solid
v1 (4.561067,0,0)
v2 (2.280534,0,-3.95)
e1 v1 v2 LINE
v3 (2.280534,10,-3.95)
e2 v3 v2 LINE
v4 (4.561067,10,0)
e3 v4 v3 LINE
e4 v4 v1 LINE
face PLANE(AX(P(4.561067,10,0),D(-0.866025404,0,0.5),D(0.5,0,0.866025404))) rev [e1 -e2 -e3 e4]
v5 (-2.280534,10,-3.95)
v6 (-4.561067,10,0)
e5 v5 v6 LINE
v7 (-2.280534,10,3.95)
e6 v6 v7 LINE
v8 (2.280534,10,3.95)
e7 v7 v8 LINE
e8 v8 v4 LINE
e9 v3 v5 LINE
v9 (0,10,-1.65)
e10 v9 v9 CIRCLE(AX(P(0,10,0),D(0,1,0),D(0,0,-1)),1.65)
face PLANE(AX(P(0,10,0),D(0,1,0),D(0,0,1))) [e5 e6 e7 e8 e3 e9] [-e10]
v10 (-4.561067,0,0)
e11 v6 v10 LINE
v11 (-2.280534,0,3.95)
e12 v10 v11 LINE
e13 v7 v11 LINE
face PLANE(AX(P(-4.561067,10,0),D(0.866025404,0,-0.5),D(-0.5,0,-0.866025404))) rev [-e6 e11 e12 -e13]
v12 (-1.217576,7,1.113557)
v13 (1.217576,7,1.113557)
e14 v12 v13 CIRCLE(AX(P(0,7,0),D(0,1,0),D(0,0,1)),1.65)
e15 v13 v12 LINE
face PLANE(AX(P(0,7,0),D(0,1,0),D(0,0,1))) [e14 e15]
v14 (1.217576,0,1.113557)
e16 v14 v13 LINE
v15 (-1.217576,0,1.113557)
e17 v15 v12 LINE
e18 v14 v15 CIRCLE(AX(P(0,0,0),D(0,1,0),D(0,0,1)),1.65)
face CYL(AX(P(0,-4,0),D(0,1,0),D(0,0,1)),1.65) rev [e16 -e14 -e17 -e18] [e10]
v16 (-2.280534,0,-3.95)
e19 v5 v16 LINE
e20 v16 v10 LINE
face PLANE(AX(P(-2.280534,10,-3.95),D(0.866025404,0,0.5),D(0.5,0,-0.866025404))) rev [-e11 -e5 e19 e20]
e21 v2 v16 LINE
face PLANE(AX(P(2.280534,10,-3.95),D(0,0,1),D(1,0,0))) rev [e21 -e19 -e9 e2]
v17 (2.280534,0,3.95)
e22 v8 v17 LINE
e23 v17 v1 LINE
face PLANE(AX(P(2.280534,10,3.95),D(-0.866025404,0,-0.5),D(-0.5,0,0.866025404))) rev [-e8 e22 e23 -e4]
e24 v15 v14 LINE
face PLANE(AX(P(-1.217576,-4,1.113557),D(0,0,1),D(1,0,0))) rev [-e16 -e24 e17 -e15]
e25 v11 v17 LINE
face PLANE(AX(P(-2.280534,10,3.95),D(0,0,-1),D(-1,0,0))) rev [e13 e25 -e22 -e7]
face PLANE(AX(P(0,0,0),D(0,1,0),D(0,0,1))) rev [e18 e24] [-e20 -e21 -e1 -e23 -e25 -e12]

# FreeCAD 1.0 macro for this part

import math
import FreeCAD as App
import Part
import Sketcher
from FreeCAD import Vector
Q = App.Units.Quantity


def add_polygon(sketch, points):
    """Adds a closed chain of lines whose ends are joined by coincident constraints."""
    first, n = sketch.GeometryCount, len(points)
    for a, b in zip(points, points[1:] + points[:1]):
        sketch.addGeometry(Part.LineSegment(App.Vector(*a, 0), App.Vector(*b, 0)), False)
    for i in range(n):
        sketch.addConstraint(Sketcher.Constraint("Coincident", first + i, 2, first + (i + 1) % n, 1))

doc = App.newDocument("Part")
body = doc.addObject("PartDesign::Body", "Body")

sketch1 = body.newObject("Sketcher::SketchObject", "Sketch")
sketch1.AttachmentSupport = (doc.getObject("XZ_Plane"), [""])
sketch1.MapMode = "FlatFace"
add_polygon(sketch1, [(4.6, 0), (2.3, -4), (-2.3, -4), (-4.6, 0), (-2.3, 4), (2.3, 4)])
sketch1.addConstraint(Sketcher.Constraint("Horizontal", 1))
sketch1.addConstraint(Sketcher.Constraint("Horizontal", 4))
sketch1.addConstraint(Sketcher.Constraint("Symmetric", 0, 2, 3, 2, -1, 1))
sketch1.addConstraint(Sketcher.Constraint("Symmetric", 2, 2, 5, 2, -1, 1))
sketch1.addConstraint(Sketcher.Constraint("PointOnObject", 2, 2, -1))
sketch1.addConstraint(Sketcher.Constraint("Parallel", 2, 5))
sketch1.addConstraint(Sketcher.Constraint("Vertical", 1, 2, 3, 2))
sketch1.addConstraint(Sketcher.Constraint("Angle", 0, Q("-120 deg")))
sketch1.addConstraint(Sketcher.Constraint("DistanceY", 1, 2, 3, 2, 7.9))
sketch1.addConstraint(Sketcher.Constraint("DistanceX", 2, 2, 0, 2, 6.841601))
pad1 = body.newObject("PartDesign::Pad", "Pad")
pad1.Profile = sketch1
pad1.Length = 10
pad1.Reversed = True

sketch2 = body.newObject("Sketcher::SketchObject", "Sketch001")
sketch2.AttachmentSupport = (doc.getObject("XZ_Plane"), [""])
sketch2.MapMode = "FlatFace"
sketch2.AttachmentOffset = App.Placement(Vector(0, 0, -10), App.Rotation())
sketch2.addGeometry(Part.LineSegment(Vector(-1.2, 1.1, 0), Vector(1.2, 1.1, 0)), False)
sketch2.addGeometry(Part.ArcOfCircle(Part.Circle(Vector(0, 0, 0), Vector(0, 0, 1), 1.6), math.radians(138), math.radians(402)), False)
sketch2.addConstraint(Sketcher.Constraint("Coincident", 0, 1, 1, 1))
sketch2.addConstraint(Sketcher.Constraint("Coincident", 1, 2, 0, 2))
sketch2.addConstraint(Sketcher.Constraint("Horizontal", 0))
sketch2.addConstraint(Sketcher.Constraint("Coincident", 1, 3, -1, 1))
sketch2.addConstraint(Sketcher.Constraint("Radius", 1, 1.65))
sketch2.addConstraint(Sketcher.Constraint("DistanceX", 0, 1, 0, 2, 2.435152))
pocket1 = body.newObject("PartDesign::Pocket", "Pocket")
pocket1.Profile = sketch2
pocket1.Length = 14
pocket1.Reversed = True

sketch3 = body.newObject("Sketcher::SketchObject", "Sketch002")
sketch3.AttachmentSupport = (doc.getObject("XZ_Plane"), [""])
sketch3.MapMode = "FlatFace"
sketch3.AttachmentOffset = App.Placement(Vector(0, 0, -10), App.Rotation())
sketch3.addGeometry(Part.Circle(Vector(0, 0, 0), Vector(0, 0, 1), 1.6), False)
sketch3.addConstraint(Sketcher.Constraint("Coincident", 0, 3, -1, 1))
sketch3.addConstraint(Sketcher.Constraint("Diameter", 0, 3.3))
pocket2 = body.newObject("PartDesign::Pocket", "Pocket001")
pocket2.Profile = sketch3
pocket2.Length = 3
pocket2.Reversed = True

doc.recompute()
